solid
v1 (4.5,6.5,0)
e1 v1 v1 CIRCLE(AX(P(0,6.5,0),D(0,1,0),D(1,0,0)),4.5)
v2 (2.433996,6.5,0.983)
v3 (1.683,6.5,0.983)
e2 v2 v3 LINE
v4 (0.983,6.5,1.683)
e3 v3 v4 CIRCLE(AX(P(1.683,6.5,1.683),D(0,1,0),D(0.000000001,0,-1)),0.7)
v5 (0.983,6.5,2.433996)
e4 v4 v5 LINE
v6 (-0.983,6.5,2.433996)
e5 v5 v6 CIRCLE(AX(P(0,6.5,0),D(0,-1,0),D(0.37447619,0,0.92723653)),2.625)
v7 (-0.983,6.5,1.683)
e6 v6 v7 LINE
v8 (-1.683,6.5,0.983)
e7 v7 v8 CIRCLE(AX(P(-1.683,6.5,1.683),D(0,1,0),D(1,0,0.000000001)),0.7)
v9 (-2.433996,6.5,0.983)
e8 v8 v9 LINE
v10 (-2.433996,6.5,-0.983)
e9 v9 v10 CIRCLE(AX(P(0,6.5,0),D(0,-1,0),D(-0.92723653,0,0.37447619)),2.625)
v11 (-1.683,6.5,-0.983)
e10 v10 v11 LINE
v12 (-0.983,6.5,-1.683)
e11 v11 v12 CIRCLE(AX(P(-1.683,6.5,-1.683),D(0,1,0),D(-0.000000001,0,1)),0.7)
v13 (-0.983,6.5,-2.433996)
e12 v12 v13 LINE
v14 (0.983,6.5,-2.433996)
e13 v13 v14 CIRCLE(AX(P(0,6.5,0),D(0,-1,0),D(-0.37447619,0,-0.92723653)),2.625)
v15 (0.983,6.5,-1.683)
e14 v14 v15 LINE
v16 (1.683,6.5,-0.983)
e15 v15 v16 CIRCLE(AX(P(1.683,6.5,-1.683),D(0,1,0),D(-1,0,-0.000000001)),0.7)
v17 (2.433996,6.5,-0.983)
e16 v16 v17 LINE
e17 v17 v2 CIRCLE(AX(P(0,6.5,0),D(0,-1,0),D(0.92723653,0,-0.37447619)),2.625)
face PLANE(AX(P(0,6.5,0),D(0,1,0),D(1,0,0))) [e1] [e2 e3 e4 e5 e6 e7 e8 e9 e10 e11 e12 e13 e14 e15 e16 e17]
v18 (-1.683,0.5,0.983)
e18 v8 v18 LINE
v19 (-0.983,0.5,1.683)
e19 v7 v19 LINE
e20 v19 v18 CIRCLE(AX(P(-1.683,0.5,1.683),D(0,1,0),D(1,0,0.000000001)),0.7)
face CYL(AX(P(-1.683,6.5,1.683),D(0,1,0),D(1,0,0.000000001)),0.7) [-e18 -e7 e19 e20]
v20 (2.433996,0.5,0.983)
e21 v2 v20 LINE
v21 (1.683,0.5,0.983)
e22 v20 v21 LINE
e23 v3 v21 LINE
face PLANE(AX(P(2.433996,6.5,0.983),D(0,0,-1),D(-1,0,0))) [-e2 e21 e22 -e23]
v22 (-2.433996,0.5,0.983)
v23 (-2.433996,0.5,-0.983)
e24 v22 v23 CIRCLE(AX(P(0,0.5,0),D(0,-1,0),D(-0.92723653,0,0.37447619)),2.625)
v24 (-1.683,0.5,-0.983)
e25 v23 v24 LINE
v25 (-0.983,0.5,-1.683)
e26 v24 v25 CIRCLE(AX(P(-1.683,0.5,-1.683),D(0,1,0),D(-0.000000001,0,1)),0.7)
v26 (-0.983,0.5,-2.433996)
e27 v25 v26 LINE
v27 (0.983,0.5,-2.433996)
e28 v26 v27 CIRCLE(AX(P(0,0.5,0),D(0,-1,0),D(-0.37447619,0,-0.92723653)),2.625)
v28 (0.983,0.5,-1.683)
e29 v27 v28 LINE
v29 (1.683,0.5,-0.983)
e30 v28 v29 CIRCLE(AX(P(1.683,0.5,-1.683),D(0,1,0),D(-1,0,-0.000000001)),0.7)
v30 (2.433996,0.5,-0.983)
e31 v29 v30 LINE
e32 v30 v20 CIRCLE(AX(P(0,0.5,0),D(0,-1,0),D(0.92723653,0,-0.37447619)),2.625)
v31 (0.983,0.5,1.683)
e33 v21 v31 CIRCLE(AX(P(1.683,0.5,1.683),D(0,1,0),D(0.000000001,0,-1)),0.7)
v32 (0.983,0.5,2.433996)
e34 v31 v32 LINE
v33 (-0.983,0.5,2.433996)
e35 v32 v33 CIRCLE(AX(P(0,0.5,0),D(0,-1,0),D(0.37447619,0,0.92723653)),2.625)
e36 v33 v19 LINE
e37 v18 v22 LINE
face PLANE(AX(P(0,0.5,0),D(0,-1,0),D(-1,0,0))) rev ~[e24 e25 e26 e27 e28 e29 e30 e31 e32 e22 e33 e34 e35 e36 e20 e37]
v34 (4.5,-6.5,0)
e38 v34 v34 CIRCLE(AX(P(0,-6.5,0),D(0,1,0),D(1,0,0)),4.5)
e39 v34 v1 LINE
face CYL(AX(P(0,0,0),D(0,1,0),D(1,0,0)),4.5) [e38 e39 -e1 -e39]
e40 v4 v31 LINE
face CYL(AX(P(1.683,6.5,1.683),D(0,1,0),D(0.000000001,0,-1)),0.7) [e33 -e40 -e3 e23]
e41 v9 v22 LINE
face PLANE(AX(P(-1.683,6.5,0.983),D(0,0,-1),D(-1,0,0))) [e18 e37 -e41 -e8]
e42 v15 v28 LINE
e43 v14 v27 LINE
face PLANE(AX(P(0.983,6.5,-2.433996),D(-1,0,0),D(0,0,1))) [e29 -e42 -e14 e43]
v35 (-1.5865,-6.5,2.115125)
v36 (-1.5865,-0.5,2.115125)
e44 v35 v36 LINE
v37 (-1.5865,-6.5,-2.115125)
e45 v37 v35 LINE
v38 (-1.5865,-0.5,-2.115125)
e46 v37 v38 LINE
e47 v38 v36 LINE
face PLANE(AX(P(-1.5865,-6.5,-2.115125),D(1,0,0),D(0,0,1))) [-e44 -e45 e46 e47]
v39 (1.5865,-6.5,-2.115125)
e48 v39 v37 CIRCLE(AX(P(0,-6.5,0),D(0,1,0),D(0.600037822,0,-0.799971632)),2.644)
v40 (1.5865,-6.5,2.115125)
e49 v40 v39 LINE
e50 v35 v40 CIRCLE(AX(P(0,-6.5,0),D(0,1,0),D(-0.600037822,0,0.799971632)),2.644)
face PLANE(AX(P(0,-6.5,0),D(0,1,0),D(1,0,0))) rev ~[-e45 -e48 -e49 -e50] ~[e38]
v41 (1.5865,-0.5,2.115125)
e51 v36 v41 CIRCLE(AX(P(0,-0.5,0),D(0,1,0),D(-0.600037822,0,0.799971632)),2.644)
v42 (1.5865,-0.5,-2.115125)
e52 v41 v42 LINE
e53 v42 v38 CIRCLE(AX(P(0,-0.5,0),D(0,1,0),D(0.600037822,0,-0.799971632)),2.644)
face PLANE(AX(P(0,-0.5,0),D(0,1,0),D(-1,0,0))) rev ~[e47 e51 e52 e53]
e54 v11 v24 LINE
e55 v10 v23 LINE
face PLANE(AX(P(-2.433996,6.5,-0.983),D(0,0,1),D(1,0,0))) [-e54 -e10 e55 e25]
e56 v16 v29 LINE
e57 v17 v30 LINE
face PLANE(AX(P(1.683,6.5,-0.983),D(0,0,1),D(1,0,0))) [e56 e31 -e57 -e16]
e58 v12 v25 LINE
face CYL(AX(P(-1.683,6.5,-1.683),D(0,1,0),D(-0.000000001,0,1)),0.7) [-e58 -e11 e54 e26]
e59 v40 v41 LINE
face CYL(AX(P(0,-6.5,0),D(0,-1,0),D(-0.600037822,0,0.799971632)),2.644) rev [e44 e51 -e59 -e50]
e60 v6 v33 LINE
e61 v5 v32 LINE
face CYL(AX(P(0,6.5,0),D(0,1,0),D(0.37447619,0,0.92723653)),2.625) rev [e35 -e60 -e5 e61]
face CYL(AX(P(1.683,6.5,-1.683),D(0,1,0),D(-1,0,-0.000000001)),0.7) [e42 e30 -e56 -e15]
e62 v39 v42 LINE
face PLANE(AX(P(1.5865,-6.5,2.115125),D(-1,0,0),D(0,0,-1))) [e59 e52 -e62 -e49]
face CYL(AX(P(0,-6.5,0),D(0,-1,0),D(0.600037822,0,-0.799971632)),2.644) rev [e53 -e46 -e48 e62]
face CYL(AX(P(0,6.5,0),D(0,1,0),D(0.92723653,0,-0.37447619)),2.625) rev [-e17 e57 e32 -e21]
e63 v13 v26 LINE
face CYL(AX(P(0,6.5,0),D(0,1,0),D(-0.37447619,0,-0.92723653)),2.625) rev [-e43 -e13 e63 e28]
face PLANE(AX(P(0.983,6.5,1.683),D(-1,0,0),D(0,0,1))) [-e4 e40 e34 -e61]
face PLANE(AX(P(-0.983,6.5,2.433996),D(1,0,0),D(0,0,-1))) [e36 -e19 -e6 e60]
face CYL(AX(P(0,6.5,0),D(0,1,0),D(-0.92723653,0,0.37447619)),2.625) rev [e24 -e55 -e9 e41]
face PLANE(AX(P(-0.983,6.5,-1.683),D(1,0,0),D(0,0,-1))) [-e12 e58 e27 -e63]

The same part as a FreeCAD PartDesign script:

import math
import FreeCAD as App
import Part
import Sketcher

doc = App.newDocument("Part")
body = doc.addObject("PartDesign::Body", "Body")

sketch1 = body.newObject("Sketcher::SketchObject", "Sketch")
sketch1.AttachmentSupport = (doc.getObject("XZ_Plane"), [""])
sketch1.MapMode = "FlatFace"
sketch1.addGeometry(Part.Circle(App.Vector(0, 0, 0), App.Vector(0, 0, 1), 4.5), False)
sketch1.addConstraint(Sketcher.Constraint("Coincident", 0, 3, -1, 1))
sketch1.addConstraint(Sketcher.Constraint("Diameter", 0, 9.0))
pad1 = body.newObject("PartDesign::Pad", "Pad")
pad1.Profile = sketch1
pad1.Length = 13
pad1.Midplane = True

sketch2 = body.newObject("Sketcher::SketchObject", "Sketch001")
sketch2.AttachmentSupport = (doc.getObject("XZ_Plane"), [""])
sketch2.MapMode = "FlatFace"
sketch2.AttachmentOffset = App.Placement(App.Vector(0, 0, 6.5), App.Rotation())
sketch2.addGeometry(Part.LineSegment(App.Vector(-1.6, 2.1, 0), App.Vector(-1.6, -2.1, 0)), False)
sketch2.addGeometry(Part.ArcOfCircle(Part.Circle(App.Vector(0, 0, 0), App.Vector(0, 0, 1), 2.6), math.radians(-127), math.radians(-53)), False)
sketch2.addGeometry(Part.LineSegment(App.Vector(1.6, -2.1, 0), App.Vector(1.6, 2.1, 0)), False)
sketch2.addGeometry(Part.ArcOfCircle(Part.Circle(App.Vector(0, 0, 0), App.Vector(0, 0, 1), 2.6), math.radians(53), math.radians(127)), False)
sketch2.addConstraint(Sketcher.Constraint("Coincident", 0, 2, 1, 1))
sketch2.addConstraint(Sketcher.Constraint("Coincident", 1, 2, 2, 1))
sketch2.addConstraint(Sketcher.Constraint("Coincident", 2, 2, 3, 1))
sketch2.addConstraint(Sketcher.Constraint("Coincident", 3, 2, 0, 1))
sketch2.addConstraint(Sketcher.Constraint("Vertical", 0))
sketch2.addConstraint(Sketcher.Constraint("Vertical", 2))
sketch2.addConstraint(Sketcher.Constraint("Coincident", 1, 3, -1, 1))
sketch2.addConstraint(Sketcher.Constraint("Coincident", 3, 3, -1, 1))
sketch2.addConstraint(Sketcher.Constraint("Equal", 1, 3))
sketch2.addConstraint(Sketcher.Constraint("Horizontal", 0, 2, 1, 2))
sketch2.addConstraint(Sketcher.Constraint("Radius", 1, 2.644))
sketch2.addConstraint(Sketcher.Constraint("DistanceX", 0, 2, 1, 2, 3.173))
pocket1 = body.newObject("PartDesign::Pocket", "Pocket")
pocket1.Profile = sketch2
pocket1.Length = 6

sketch3 = body.newObject("Sketcher::SketchObject", "Sketch002")
sketch3.AttachmentSupport = (doc.getObject("XZ_Plane"), [""])
sketch3.MapMode = "FlatFace"
sketch3.AttachmentOffset = App.Placement(App.Vector(0, 0, -6.5), App.Rotation())
sketch3.addGeometry(Part.LineSegment(App.Vector(1, -1.7, 0), App.Vector(1, -2.4, 0)), False)
sketch3.addGeometry(Part.ArcOfCircle(Part.Circle(App.Vector(0, 0, 0), App.Vector(0, 0, 1), 2.6), math.radians(-112), math.radians(-68)), False)
sketch3.addGeometry(Part.LineSegment(App.Vector(-1, -2.4, 0), App.Vector(-1, -1.7, 0)), False)
sketch3.addGeometry(Part.ArcOfCircle(Part.Circle(App.Vector(-1.7, -1.7, 0), App.Vector(0, 0, 1), 0.7), math.radians(0), math.radians(90)), False)
sketch3.addGeometry(Part.LineSegment(App.Vector(-1.7, -1, 0), App.Vector(-2.4, -1, 0)), False)
sketch3.addGeometry(Part.ArcOfCircle(Part.Circle(App.Vector(0, 0, 0), App.Vector(0, 0, 1), 2.6), math.radians(158), math.radians(202)), False)
sketch3.addGeometry(Part.LineSegment(App.Vector(-2.4, 1, 0), App.Vector(-1.7, 1, 0)), False)
sketch3.addGeometry(Part.ArcOfCircle(Part.Circle(App.Vector(-1.7, 1.7, 0), App.Vector(0, 0, 1), 0.7), math.radians(-90), math.radians(0)), False)
sketch3.addGeometry(Part.LineSegment(App.Vector(-1, 1.7, 0), App.Vector(-1, 2.4, 0)), False)
sketch3.addGeometry(Part.ArcOfCircle(Part.Circle(App.Vector(0, 0, 0), App.Vector(0, 0, 1), 2.6), math.radians(68), math.radians(112)), False)
sketch3.addGeometry(Part.LineSegment(App.Vector(1, 2.4, 0), App.Vector(1, 1.7, 0)), False)
sketch3.addGeometry(Part.ArcOfCircle(Part.Circle(App.Vector(1.7, 1.7, 0), App.Vector(0, 0, 1), 0.7), math.radians(180), math.radians(270)), False)
sketch3.addGeometry(Part.LineSegment(App.Vector(1.7, 1, 0), App.Vector(2.4, 1, 0)), False)
sketch3.addGeometry(Part.ArcOfCircle(Part.Circle(App.Vector(0, 0, 0), App.Vector(0, 0, 1), 2.6), math.radians(-22), math.radians(22)), False)
sketch3.addGeometry(Part.LineSegment(App.Vector(2.4, -1, 0), App.Vector(1.7, -1, 0)), False)
sketch3.addGeometry(Part.ArcOfCircle(Part.Circle(App.Vector(1.7, -1.7, 0), App.Vector(0, 0, 1), 0.7), math.radians(90), math.radians(180)), False)
sketch3.addConstraint(Sketcher.Constraint("Coincident", 0, 2, 1, 2))
sketch3.addConstraint(Sketcher.Constraint("Coincident", 1, 1, 2, 1))
sketch3.addConstraint(Sketcher.Constraint("Tangent", 2, 2, 3, 1))
sketch3.addConstraint(Sketcher.Constraint("Tangent", 3, 2, 4, 1))
sketch3.addConstraint(Sketcher.Constraint("Coincident", 4, 2, 5, 2))
sketch3.addConstraint(Sketcher.Constraint("Coincident", 5, 1, 6, 1))
sketch3.addConstraint(Sketcher.Constraint("Tangent", 6, 2, 7, 1))
sketch3.addConstraint(Sketcher.Constraint("Tangent", 7, 2, 8, 1))
sketch3.addConstraint(Sketcher.Constraint("Coincident", 8, 2, 9, 2))
sketch3.addConstraint(Sketcher.Constraint("Coincident", 9, 1, 10, 1))
sketch3.addConstraint(Sketcher.Constraint("Tangent", 10, 2, 11, 1))
sketch3.addConstraint(Sketcher.Constraint("Tangent", 11, 2, 12, 1))
sketch3.addConstraint(Sketcher.Constraint("Coincident", 12, 2, 13, 2))
sketch3.addConstraint(Sketcher.Constraint("Coincident", 13, 1, 14, 1))
sketch3.addConstraint(Sketcher.Constraint("Tangent", 14, 2, 15, 1))
sketch3.addConstraint(Sketcher.Constraint("Tangent", 15, 2, 0, 1))
sketch3.addConstraint(Sketcher.Constraint("Vertical", 0))
sketch3.addConstraint(Sketcher.Constraint("Vertical", 2))
sketch3.addConstraint(Sketcher.Constraint("Horizontal", 4))
sketch3.addConstraint(Sketcher.Constraint("Horizontal", 6))
sketch3.addConstraint(Sketcher.Constraint("Vertical", 8))
sketch3.addConstraint(Sketcher.Constraint("Vertical", 10))
sketch3.addConstraint(Sketcher.Constraint("Horizontal", 12))
sketch3.addConstraint(Sketcher.Constraint("Horizontal", 14))
sketch3.addConstraint(Sketcher.Constraint("Coincident", 1, 3, -1, 1))
sketch3.addConstraint(Sketcher.Constraint("Coincident", 5, 3, -1, 1))
sketch3.addConstraint(Sketcher.Constraint("Coincident", 9, 3, -1, 1))
sketch3.addConstraint(Sketcher.Constraint("Coincident", 13, 3, -1, 1))
sketch3.addConstraint(Sketcher.Constraint("Equal", 1, 5))
sketch3.addConstraint(Sketcher.Constraint("Equal", 3, 7))
sketch3.addConstraint(Sketcher.Constraint("Equal", 5, 9))
sketch3.addConstraint(Sketcher.Constraint("Equal", 7, 11))
sketch3.addConstraint(Sketcher.Constraint("Equal", 9, 13))
sketch3.addConstraint(Sketcher.Constraint("Equal", 11, 15))
sketch3.addConstraint(Sketcher.Constraint("Symmetric", 3, 3, 11, 3, -1, 1))
sketch3.addConstraint(Sketcher.Constraint("Symmetric", 7, 3, 15, 3, -1, 1))
sketch3.addConstraint(Sketcher.Constraint("Symmetric", 7, 3, 11, 3, -2))
sketch3.addConstraint(Sketcher.Constraint("Equal", 14, 0))
sketch3.addConstraint(Sketcher.Constraint("Radius", 3, 0.7))
sketch3.addConstraint(Sketcher.Constraint("Radius", 1, 2.625))
sketch3.addConstraint(Sketcher.Constraint("DistanceX", 3, 3, -1, 1, 1.683))
pocket2 = body.newObject("PartDesign::Pocket", "Pocket001")
pocket2.Profile = sketch3
pocket2.Length = 6
pocket2.Reversed = True

doc.recompute()
